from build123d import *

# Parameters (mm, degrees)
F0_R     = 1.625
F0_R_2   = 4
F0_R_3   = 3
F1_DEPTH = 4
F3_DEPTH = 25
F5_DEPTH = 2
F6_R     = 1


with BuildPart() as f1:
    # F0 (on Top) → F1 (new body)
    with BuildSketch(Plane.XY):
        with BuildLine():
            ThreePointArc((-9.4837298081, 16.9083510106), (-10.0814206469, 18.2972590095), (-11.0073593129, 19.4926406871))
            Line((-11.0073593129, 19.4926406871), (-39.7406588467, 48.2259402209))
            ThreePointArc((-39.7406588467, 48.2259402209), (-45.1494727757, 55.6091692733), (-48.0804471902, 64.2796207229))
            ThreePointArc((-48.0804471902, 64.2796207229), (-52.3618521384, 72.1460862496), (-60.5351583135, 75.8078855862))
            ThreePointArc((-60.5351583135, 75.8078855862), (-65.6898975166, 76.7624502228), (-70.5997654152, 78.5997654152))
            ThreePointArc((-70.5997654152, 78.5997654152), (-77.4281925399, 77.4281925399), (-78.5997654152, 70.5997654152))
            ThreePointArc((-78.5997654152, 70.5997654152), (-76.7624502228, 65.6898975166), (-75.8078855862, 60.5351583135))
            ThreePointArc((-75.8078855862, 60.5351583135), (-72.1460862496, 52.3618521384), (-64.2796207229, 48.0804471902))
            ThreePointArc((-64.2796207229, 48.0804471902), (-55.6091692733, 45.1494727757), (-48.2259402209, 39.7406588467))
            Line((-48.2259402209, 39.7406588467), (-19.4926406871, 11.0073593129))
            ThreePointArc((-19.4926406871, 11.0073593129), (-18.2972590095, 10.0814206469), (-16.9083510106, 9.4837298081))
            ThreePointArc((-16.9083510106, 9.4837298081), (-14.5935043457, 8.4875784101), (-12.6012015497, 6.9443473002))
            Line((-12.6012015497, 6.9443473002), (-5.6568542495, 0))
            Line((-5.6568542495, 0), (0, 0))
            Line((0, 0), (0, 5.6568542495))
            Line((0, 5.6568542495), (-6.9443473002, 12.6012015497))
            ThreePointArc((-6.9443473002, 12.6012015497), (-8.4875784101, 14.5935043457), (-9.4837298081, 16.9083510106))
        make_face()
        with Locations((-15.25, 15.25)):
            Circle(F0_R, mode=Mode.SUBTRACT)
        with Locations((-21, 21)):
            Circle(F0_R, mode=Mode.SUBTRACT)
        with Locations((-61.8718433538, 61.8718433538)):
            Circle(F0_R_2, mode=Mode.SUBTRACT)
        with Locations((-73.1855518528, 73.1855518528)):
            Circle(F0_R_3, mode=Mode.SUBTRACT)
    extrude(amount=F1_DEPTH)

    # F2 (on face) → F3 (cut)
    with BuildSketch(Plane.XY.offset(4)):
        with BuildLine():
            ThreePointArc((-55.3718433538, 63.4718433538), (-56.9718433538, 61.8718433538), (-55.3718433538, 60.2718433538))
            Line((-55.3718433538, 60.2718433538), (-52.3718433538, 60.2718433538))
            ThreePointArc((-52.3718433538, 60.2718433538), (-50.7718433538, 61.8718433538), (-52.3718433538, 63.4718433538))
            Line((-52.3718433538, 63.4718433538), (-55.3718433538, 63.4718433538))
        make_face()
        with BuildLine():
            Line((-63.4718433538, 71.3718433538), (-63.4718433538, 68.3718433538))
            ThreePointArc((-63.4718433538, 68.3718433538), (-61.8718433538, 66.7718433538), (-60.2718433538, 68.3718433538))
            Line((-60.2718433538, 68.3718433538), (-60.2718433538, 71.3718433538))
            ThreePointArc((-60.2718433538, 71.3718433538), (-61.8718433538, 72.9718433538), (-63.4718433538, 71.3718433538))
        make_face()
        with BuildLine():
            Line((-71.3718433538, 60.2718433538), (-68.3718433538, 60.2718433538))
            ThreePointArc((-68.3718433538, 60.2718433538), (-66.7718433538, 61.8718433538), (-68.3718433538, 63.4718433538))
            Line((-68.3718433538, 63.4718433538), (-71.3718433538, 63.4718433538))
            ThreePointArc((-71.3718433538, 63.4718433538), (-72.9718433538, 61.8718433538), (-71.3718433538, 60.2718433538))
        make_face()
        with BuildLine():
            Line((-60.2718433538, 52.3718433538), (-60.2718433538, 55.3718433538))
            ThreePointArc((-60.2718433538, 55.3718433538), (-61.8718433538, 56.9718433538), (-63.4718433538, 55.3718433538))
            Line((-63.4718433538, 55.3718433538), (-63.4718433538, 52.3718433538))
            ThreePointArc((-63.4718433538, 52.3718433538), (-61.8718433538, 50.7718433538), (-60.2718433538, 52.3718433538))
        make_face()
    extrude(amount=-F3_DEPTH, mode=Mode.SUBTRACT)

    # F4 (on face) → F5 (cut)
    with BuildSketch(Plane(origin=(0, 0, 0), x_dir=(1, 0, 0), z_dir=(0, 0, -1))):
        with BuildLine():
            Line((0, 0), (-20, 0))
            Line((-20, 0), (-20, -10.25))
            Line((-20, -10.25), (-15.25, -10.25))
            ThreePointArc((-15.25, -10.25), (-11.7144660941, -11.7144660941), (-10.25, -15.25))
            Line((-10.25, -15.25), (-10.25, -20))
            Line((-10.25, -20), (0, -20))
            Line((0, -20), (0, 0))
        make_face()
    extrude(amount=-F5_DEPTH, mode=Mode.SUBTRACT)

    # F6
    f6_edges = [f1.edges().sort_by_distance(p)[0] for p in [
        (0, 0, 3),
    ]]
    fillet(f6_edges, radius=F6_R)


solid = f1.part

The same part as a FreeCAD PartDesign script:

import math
import FreeCAD as App
import Part
import Sketcher

V = App.Vector
Q = App.Units.Quantity


def edges_at(feature, points):
    """Names of the edges that pass closest to the given points."""
    edges = feature.Shape.Edges
    near = lambda p: min(range(len(edges)), key=lambda i: edges[i].distToShape(Part.Vertex(*p))[0])
    return sorted({f"Edge{near(p) + 1}" for p in points})

doc = App.newDocument("Part")
body = doc.addObject("PartDesign::Body", "Body")

# Sketch on XY plane
sketch1 = doc.addObject("Sketcher::SketchObject", "Sketch")
body.addObject(sketch1)
sketch1.AttachmentSupport = (doc.XY_Plane, [""])
sketch1.MapMode = "FlatFace"
sketch1.addGeometry([
    Part.ArcOfCircle(Part.Circle(V(-15.2, 15.2, 0), V(0, 0, 1), 6), math.radians(16), math.radians(45)),  # 0
    Part.LineSegment(V(-11, 19.5, 0), V(-39.7, 48.2, 0)),  # 1
    Part.ArcOfCircle(Part.Circle(V(-18.5, 69.4, 0), V(0, 0, 1), 30), math.radians(-170), math.radians(-135)),  # 2
    Part.ArcOfCircle(Part.Circle(V(-61.9, 61.9, 0), V(0, 0, 1), 14), math.radians(10), math.radians(85)),  # 3
    Part.ArcOfCircle(Part.Circle(V(-57.7, 105.7, 0), V(0, 0, 1), 30), math.radians(-116), math.radians(-95)),  # 4
    Part.ArcOfCircle(Part.Circle(V(-73.2, 73.2, 0), V(0, 0, 1), 6), math.radians(64), math.radians(206)),  # 5
    Part.ArcOfCircle(Part.Circle(V(-105.7, 57.7, 0), V(0, 0, 1), 30), math.radians(5), math.radians(26)),  # 6
    Part.ArcOfCircle(Part.Circle(V(-61.9, 61.9, 0), V(0, 0, 1), 14), math.radians(-175), math.radians(-100)),  # 7
    Part.ArcOfCircle(Part.Circle(V(-69.4, 18.5, 0), V(0, 0, 1), 30), math.radians(45), math.radians(80)),  # 8
    Part.LineSegment(V(-48.2, 39.7, 0), V(-19.5, 11, 0)),  # 9
    Part.ArcOfCircle(Part.Circle(V(-15.2, 15.2, 0), V(0, 0, 1), 6), math.radians(-135), math.radians(-106)),  # 10
    Part.ArcOfCircle(Part.Circle(V(-19.7, -0.1, 0), V(0, 0, 1), 10), math.radians(45), math.radians(74)),  # 11
    Part.LineSegment(V(-12.6, 6.9, 0), V(-5.7, 0, 0)),  # 12
    Part.LineSegment(V(-5.7, 0, 0), V(0, 0, 0)),  # 13
    Part.LineSegment(V(0, 0, 0), V(0, 5.7, 0)),  # 14
    Part.LineSegment(V(0, 5.7, 0), V(-6.9, 12.6, 0)),  # 15
    Part.ArcOfCircle(Part.Circle(V(0.1, 19.7, 0), V(0, 0, 1), 10), math.radians(-164), math.radians(-135)),  # 16
    Part.Circle(V(-15.2, 15.2, 0), V(0, 0, 1), 1.6),  # 17
    Part.Circle(V(-21, 21, 0), V(0, 0, 1), 1.6),  # 18
    Part.Circle(V(-61.9, 61.9, 0), V(0, 0, 1), 4),  # 19
    Part.Circle(V(-73.2, 73.2, 0), V(0, 0, 1), 3),  # 20
], False)
sketch1.addConstraint([
    Sketcher.Constraint("Tangent", 0, 2, 1, 1),
    Sketcher.Constraint("Tangent", 1, 2, 2, 2),
    Sketcher.Constraint("Tangent", 2, 1, 3, 1),
    Sketcher.Constraint("Tangent", 3, 2, 4, 2),
    Sketcher.Constraint("Tangent", 4, 1, 5, 1),
    Sketcher.Constraint("Tangent", 5, 2, 6, 2),
    Sketcher.Constraint("Tangent", 6, 1, 7, 1),
    Sketcher.Constraint("Tangent", 7, 2, 8, 2),
    Sketcher.Constraint("Tangent", 8, 1, 9, 1),
    Sketcher.Constraint("Tangent", 9, 2, 10, 1),
    Sketcher.Constraint("Tangent", 10, 2, 11, 2),
    Sketcher.Constraint("Tangent", 11, 1, 12, 1),
    Sketcher.Constraint("Coincident", 12, 2, 13, 1),
    Sketcher.Constraint("Coincident", 13, 2, 14, 1),
    Sketcher.Constraint("Coincident", 14, 2, 15, 1),
    Sketcher.Constraint("Tangent", 15, 2, 16, 2),
    Sketcher.Constraint("Tangent", 16, 1, 0, 1),
    Sketcher.Constraint("Horizontal", 13),
    Sketcher.Constraint("Vertical", 14),
    Sketcher.Constraint("Coincident", 13, 2, -1, 1),
    Sketcher.Constraint("Coincident", 7, 3, 3, 3),
    Sketcher.Constraint("Coincident", 10, 3, 0, 3),
    Sketcher.Constraint("Coincident", 17, 3, 0, 3),
    Sketcher.Constraint("Coincident", 19, 3, 3, 3),
    Sketcher.Constraint("Coincident", 20, 3, 5, 3),
    Sketcher.Constraint("Equal", 2, 4),
    Sketcher.Constraint("Equal", 0, 5),
    Sketcher.Constraint("Equal", 4, 6),
    Sketcher.Constraint("Equal", 3, 7),
    Sketcher.Constraint("Equal", 6, 8),
    Sketcher.Constraint("Equal", 5, 10),
    Sketcher.Constraint("Equal", 11, 16),
    Sketcher.Constraint("Equal", 17, 18),
    Sketcher.Constraint("Parallel", 1, 9),
    Sketcher.Constraint("Parallel", 9, 12),
    Sketcher.Constraint("Parallel", 12, 15),
    Sketcher.Constraint("Equal", 13, 14),
    Sketcher.Constraint("Equal", 1, 9),
    Sketcher.Constraint("Equal", 12, 15),
    Sketcher.Constraint("Diameter", 19, 8.0),
    Sketcher.Constraint("Diameter", 20, 6.0),
    Sketcher.Constraint("Radius", 0, 6.0),
    Sketcher.Constraint("Radius", 2, 30.0),
    Sketcher.Constraint("Radius", 3, 14.0),
    Sketcher.Constraint("Radius", 11, 10.0),
    Sketcher.Constraint("Diameter", 17, 3.25),
    Sketcher.Constraint("Angle", 1, Q("135 deg")),
    Sketcher.Constraint("DistanceX", 18, 3, -1, 1, 21.0),
    Sketcher.Constraint("DistanceY", -1, 1, 18, 3, 21.0),
    Sketcher.Constraint("DistanceX", 6, 3, 4, 3, 48.0),
    Sketcher.Constraint("DistanceY", 6, 3, 4, 3, 48.0),
    Sketcher.Constraint("DistanceX", 0, 3, -1, 1, 15.25),
    Sketcher.Constraint("DistanceX", 11, 1, -1, 1, 12.601202),
    Sketcher.Constraint("Distance", 1, 40.635022),
])
pad1 = doc.addObject("PartDesign::Pad", "Pad")
body.addObject(pad1)
pad1.Profile = sketch1
pad1.Length = 4

# Sketch on XY plane
sketch2 = doc.addObject("Sketcher::SketchObject", "Sketch001")
body.addObject(sketch2)
sketch2.AttachmentSupport = (doc.XY_Plane, [""])
sketch2.MapMode = "FlatFace"
sketch2.AttachmentOffset = App.Placement(V(0, 0, 4), App.Rotation())
sketch2.addGeometry([
    Part.ArcOfCircle(Part.Circle(V(-55.4, 61.9, 0), V(0, 0, 1), 1.6), math.radians(90), math.radians(270)),  # 0
    Part.LineSegment(V(-55.4, 60.3, 0), V(-52.4, 60.3, 0)),  # 1
    Part.ArcOfCircle(Part.Circle(V(-52.4, 61.9, 0), V(0, 0, 1), 1.6), math.radians(-90), math.radians(90)),  # 2
    Part.LineSegment(V(-52.4, 63.5, 0), V(-55.4, 63.5, 0)),  # 3
    Part.LineSegment(V(-63.5, 71.4, 0), V(-63.5, 68.4, 0)),  # 4
    Part.ArcOfCircle(Part.Circle(V(-61.9, 68.4, 0), V(0, 0, 1), 1.6), math.radians(180), math.radians(360)),  # 5
    Part.LineSegment(V(-60.3, 68.4, 0), V(-60.3, 71.4, 0)),  # 6
    Part.ArcOfCircle(Part.Circle(V(-61.9, 71.4, 0), V(0, 0, 1), 1.6), math.radians(0), math.radians(180)),  # 7
    Part.LineSegment(V(-71.4, 60.3, 0), V(-68.4, 60.3, 0)),  # 8
    Part.ArcOfCircle(Part.Circle(V(-68.4, 61.9, 0), V(0, 0, 1), 1.6), math.radians(-90), math.radians(90)),  # 9
    Part.LineSegment(V(-68.4, 63.5, 0), V(-71.4, 63.5, 0)),  # 10
    Part.ArcOfCircle(Part.Circle(V(-71.4, 61.9, 0), V(0, 0, 1), 1.6), math.radians(90), math.radians(270)),  # 11
    Part.LineSegment(V(-60.3, 52.4, 0), V(-60.3, 55.4, 0)),  # 12
    Part.ArcOfCircle(Part.Circle(V(-61.9, 55.4, 0), V(0, 0, 1), 1.6), math.radians(0), math.radians(180)),  # 13
    Part.LineSegment(V(-63.5, 55.4, 0), V(-63.5, 52.4, 0)),  # 14
    Part.ArcOfCircle(Part.Circle(V(-61.9, 52.4, 0), V(0, 0, 1), 1.6), math.radians(180), math.radians(360)),  # 15
], False)
sketch2.addConstraint([
    Sketcher.Constraint("Tangent", 0, 2, 1, 1),
    Sketcher.Constraint("Tangent", 1, 2, 2, 1),
    Sketcher.Constraint("Tangent", 2, 2, 3, 1),
    Sketcher.Constraint("Tangent", 3, 2, 0, 1),
    Sketcher.Constraint("Tangent", 4, 2, 5, 1),
    Sketcher.Constraint("Tangent", 5, 2, 6, 1),
    Sketcher.Constraint("Tangent", 6, 2, 7, 1),
    Sketcher.Constraint("Tangent", 7, 2, 4, 1),
    Sketcher.Constraint("Tangent", 8, 2, 9, 1),
    Sketcher.Constraint("Tangent", 9, 2, 10, 1),
    Sketcher.Constraint("Tangent", 10, 2, 11, 1),
    Sketcher.Constraint("Tangent", 11, 2, 8, 1),
    Sketcher.Constraint("Tangent", 12, 2, 13, 1),
    Sketcher.Constraint("Tangent", 13, 2, 14, 1),
    Sketcher.Constraint("Tangent", 14, 2, 15, 1),
    Sketcher.Constraint("Tangent", 15, 2, 12, 1),
    Sketcher.Constraint("Horizontal", 1),
    Sketcher.Constraint("Horizontal", 3),
    Sketcher.Constraint("Vertical", 4),
    Sketcher.Constraint("Vertical", 6),
    Sketcher.Constraint("Horizontal", 8),
    Sketcher.Constraint("Horizontal", 10),
    Sketcher.Constraint("Vertical", 12),
    Sketcher.Constraint("Vertical", 14),
    Sketcher.Constraint("Equal", 2, 5),
    Sketcher.Constraint("Equal", 7, 9),
    Sketcher.Constraint("Equal", 11, 13),
    Sketcher.Constraint("Horizontal", 2, 3, 9, 3),
    Sketcher.Constraint("Vertical", 7, 3, 13, 3),
    Sketcher.Constraint("Equal", 3, 8),
    Sketcher.Constraint("Equal", 10, 4),
    Sketcher.Constraint("Equal", 6, 12),
    Sketcher.Constraint("Radius", 0, 1.6),
    Sketcher.Constraint("DistanceX", 1, 1, 1, 2, 3.0),
    Sketcher.Constraint("DistanceX", 9, 3, 0, 3, 13.0),
    Sketcher.Constraint("DistanceY", 13, 3, 5, 3, 13.0),
    Sketcher.Constraint("DistanceX", 5, 3, 0, 3, 6.5),
    Sketcher.Constraint("DistanceY", 0, 3, 5, 3, 6.5),
    Sketcher.Constraint("DistanceX", 0, 3, -1, 1, 55.371843),
    Sketcher.Constraint("DistanceY", -1, 1, 0, 3, 61.871843),
])
pocket1 = doc.addObject("PartDesign::Pocket", "Pocket")
body.addObject(pocket1)
pocket1.Profile = sketch2
pocket1.Length = 25

# Sketch on XY plane
sketch3 = doc.addObject("Sketcher::SketchObject", "Sketch002")
body.addObject(sketch3)
sketch3.AttachmentSupport = (doc.XY_Plane, [""])
sketch3.MapMode = "FlatFace"
sketch3.addGeometry([
    Part.LineSegment(V(0, 0, 0), V(-20, 0, 0)),  # 0
    Part.LineSegment(V(-20, 0, 0), V(-20, 10.2, 0)),  # 1
    Part.LineSegment(V(-20, 10.2, 0), V(-15.2, 10.2, 0)),  # 2
    Part.ArcOfCircle(Part.Circle(V(-15.2, 15.2, 0), V(0, 0, 1), 5), math.radians(-90), math.radians(0)),  # 3
    Part.LineSegment(V(-10.2, 15.2, 0), V(-10.2, 20, 0)),  # 4
    Part.LineSegment(V(-10.2, 20, 0), V(0, 20, 0)),  # 5
    Part.LineSegment(V(0, 20, 0), V(0, 0, 0)),  # 6
], False)
sketch3.addConstraint([
    Sketcher.Constraint("Coincident", 0, 2, 1, 1),
    Sketcher.Constraint("Coincident", 1, 2, 2, 1),
    Sketcher.Constraint("Tangent", 2, 2, 3, 1),
    Sketcher.Constraint("Tangent", 3, 2, 4, 1),
    Sketcher.Constraint("Coincident", 4, 2, 5, 1),
    Sketcher.Constraint("Coincident", 5, 2, 6, 1),
    Sketcher.Constraint("Coincident", 6, 2, 0, 1),
    Sketcher.Constraint("Horizontal", 0),
    Sketcher.Constraint("Vertical", 1),
    Sketcher.Constraint("Horizontal", 2),
    Sketcher.Constraint("Vertical", 4),
    Sketcher.Constraint("Horizontal", 5),
    Sketcher.Constraint("Vertical", 6),
    Sketcher.Constraint("Coincident", 6, 2, -1, 1),
    Sketcher.Constraint("Equal", 5, 1),
    Sketcher.Constraint("Equal", 2, 4),
    Sketcher.Constraint("Radius", 3, 5.0),
    Sketcher.Constraint("DistanceX", 0, 2, 0, 1, 20.0),
    Sketcher.Constraint("DistanceX", 2, 1, 2, 2, 4.75),
])
pocket2 = doc.addObject("PartDesign::Pocket", "Pocket001")
body.addObject(pocket2)
pocket2.Profile = sketch3
pocket2.Length = 2
pocket2.Reversed = True
doc.recompute()

fillet = doc.addObject("PartDesign::Fillet", "Fillet")
body.addObject(fillet)
fillet.Base = (pocket2, edges_at(pocket2, [(0, 0, 3)]))
fillet.Radius = 1

doc.recompute()
